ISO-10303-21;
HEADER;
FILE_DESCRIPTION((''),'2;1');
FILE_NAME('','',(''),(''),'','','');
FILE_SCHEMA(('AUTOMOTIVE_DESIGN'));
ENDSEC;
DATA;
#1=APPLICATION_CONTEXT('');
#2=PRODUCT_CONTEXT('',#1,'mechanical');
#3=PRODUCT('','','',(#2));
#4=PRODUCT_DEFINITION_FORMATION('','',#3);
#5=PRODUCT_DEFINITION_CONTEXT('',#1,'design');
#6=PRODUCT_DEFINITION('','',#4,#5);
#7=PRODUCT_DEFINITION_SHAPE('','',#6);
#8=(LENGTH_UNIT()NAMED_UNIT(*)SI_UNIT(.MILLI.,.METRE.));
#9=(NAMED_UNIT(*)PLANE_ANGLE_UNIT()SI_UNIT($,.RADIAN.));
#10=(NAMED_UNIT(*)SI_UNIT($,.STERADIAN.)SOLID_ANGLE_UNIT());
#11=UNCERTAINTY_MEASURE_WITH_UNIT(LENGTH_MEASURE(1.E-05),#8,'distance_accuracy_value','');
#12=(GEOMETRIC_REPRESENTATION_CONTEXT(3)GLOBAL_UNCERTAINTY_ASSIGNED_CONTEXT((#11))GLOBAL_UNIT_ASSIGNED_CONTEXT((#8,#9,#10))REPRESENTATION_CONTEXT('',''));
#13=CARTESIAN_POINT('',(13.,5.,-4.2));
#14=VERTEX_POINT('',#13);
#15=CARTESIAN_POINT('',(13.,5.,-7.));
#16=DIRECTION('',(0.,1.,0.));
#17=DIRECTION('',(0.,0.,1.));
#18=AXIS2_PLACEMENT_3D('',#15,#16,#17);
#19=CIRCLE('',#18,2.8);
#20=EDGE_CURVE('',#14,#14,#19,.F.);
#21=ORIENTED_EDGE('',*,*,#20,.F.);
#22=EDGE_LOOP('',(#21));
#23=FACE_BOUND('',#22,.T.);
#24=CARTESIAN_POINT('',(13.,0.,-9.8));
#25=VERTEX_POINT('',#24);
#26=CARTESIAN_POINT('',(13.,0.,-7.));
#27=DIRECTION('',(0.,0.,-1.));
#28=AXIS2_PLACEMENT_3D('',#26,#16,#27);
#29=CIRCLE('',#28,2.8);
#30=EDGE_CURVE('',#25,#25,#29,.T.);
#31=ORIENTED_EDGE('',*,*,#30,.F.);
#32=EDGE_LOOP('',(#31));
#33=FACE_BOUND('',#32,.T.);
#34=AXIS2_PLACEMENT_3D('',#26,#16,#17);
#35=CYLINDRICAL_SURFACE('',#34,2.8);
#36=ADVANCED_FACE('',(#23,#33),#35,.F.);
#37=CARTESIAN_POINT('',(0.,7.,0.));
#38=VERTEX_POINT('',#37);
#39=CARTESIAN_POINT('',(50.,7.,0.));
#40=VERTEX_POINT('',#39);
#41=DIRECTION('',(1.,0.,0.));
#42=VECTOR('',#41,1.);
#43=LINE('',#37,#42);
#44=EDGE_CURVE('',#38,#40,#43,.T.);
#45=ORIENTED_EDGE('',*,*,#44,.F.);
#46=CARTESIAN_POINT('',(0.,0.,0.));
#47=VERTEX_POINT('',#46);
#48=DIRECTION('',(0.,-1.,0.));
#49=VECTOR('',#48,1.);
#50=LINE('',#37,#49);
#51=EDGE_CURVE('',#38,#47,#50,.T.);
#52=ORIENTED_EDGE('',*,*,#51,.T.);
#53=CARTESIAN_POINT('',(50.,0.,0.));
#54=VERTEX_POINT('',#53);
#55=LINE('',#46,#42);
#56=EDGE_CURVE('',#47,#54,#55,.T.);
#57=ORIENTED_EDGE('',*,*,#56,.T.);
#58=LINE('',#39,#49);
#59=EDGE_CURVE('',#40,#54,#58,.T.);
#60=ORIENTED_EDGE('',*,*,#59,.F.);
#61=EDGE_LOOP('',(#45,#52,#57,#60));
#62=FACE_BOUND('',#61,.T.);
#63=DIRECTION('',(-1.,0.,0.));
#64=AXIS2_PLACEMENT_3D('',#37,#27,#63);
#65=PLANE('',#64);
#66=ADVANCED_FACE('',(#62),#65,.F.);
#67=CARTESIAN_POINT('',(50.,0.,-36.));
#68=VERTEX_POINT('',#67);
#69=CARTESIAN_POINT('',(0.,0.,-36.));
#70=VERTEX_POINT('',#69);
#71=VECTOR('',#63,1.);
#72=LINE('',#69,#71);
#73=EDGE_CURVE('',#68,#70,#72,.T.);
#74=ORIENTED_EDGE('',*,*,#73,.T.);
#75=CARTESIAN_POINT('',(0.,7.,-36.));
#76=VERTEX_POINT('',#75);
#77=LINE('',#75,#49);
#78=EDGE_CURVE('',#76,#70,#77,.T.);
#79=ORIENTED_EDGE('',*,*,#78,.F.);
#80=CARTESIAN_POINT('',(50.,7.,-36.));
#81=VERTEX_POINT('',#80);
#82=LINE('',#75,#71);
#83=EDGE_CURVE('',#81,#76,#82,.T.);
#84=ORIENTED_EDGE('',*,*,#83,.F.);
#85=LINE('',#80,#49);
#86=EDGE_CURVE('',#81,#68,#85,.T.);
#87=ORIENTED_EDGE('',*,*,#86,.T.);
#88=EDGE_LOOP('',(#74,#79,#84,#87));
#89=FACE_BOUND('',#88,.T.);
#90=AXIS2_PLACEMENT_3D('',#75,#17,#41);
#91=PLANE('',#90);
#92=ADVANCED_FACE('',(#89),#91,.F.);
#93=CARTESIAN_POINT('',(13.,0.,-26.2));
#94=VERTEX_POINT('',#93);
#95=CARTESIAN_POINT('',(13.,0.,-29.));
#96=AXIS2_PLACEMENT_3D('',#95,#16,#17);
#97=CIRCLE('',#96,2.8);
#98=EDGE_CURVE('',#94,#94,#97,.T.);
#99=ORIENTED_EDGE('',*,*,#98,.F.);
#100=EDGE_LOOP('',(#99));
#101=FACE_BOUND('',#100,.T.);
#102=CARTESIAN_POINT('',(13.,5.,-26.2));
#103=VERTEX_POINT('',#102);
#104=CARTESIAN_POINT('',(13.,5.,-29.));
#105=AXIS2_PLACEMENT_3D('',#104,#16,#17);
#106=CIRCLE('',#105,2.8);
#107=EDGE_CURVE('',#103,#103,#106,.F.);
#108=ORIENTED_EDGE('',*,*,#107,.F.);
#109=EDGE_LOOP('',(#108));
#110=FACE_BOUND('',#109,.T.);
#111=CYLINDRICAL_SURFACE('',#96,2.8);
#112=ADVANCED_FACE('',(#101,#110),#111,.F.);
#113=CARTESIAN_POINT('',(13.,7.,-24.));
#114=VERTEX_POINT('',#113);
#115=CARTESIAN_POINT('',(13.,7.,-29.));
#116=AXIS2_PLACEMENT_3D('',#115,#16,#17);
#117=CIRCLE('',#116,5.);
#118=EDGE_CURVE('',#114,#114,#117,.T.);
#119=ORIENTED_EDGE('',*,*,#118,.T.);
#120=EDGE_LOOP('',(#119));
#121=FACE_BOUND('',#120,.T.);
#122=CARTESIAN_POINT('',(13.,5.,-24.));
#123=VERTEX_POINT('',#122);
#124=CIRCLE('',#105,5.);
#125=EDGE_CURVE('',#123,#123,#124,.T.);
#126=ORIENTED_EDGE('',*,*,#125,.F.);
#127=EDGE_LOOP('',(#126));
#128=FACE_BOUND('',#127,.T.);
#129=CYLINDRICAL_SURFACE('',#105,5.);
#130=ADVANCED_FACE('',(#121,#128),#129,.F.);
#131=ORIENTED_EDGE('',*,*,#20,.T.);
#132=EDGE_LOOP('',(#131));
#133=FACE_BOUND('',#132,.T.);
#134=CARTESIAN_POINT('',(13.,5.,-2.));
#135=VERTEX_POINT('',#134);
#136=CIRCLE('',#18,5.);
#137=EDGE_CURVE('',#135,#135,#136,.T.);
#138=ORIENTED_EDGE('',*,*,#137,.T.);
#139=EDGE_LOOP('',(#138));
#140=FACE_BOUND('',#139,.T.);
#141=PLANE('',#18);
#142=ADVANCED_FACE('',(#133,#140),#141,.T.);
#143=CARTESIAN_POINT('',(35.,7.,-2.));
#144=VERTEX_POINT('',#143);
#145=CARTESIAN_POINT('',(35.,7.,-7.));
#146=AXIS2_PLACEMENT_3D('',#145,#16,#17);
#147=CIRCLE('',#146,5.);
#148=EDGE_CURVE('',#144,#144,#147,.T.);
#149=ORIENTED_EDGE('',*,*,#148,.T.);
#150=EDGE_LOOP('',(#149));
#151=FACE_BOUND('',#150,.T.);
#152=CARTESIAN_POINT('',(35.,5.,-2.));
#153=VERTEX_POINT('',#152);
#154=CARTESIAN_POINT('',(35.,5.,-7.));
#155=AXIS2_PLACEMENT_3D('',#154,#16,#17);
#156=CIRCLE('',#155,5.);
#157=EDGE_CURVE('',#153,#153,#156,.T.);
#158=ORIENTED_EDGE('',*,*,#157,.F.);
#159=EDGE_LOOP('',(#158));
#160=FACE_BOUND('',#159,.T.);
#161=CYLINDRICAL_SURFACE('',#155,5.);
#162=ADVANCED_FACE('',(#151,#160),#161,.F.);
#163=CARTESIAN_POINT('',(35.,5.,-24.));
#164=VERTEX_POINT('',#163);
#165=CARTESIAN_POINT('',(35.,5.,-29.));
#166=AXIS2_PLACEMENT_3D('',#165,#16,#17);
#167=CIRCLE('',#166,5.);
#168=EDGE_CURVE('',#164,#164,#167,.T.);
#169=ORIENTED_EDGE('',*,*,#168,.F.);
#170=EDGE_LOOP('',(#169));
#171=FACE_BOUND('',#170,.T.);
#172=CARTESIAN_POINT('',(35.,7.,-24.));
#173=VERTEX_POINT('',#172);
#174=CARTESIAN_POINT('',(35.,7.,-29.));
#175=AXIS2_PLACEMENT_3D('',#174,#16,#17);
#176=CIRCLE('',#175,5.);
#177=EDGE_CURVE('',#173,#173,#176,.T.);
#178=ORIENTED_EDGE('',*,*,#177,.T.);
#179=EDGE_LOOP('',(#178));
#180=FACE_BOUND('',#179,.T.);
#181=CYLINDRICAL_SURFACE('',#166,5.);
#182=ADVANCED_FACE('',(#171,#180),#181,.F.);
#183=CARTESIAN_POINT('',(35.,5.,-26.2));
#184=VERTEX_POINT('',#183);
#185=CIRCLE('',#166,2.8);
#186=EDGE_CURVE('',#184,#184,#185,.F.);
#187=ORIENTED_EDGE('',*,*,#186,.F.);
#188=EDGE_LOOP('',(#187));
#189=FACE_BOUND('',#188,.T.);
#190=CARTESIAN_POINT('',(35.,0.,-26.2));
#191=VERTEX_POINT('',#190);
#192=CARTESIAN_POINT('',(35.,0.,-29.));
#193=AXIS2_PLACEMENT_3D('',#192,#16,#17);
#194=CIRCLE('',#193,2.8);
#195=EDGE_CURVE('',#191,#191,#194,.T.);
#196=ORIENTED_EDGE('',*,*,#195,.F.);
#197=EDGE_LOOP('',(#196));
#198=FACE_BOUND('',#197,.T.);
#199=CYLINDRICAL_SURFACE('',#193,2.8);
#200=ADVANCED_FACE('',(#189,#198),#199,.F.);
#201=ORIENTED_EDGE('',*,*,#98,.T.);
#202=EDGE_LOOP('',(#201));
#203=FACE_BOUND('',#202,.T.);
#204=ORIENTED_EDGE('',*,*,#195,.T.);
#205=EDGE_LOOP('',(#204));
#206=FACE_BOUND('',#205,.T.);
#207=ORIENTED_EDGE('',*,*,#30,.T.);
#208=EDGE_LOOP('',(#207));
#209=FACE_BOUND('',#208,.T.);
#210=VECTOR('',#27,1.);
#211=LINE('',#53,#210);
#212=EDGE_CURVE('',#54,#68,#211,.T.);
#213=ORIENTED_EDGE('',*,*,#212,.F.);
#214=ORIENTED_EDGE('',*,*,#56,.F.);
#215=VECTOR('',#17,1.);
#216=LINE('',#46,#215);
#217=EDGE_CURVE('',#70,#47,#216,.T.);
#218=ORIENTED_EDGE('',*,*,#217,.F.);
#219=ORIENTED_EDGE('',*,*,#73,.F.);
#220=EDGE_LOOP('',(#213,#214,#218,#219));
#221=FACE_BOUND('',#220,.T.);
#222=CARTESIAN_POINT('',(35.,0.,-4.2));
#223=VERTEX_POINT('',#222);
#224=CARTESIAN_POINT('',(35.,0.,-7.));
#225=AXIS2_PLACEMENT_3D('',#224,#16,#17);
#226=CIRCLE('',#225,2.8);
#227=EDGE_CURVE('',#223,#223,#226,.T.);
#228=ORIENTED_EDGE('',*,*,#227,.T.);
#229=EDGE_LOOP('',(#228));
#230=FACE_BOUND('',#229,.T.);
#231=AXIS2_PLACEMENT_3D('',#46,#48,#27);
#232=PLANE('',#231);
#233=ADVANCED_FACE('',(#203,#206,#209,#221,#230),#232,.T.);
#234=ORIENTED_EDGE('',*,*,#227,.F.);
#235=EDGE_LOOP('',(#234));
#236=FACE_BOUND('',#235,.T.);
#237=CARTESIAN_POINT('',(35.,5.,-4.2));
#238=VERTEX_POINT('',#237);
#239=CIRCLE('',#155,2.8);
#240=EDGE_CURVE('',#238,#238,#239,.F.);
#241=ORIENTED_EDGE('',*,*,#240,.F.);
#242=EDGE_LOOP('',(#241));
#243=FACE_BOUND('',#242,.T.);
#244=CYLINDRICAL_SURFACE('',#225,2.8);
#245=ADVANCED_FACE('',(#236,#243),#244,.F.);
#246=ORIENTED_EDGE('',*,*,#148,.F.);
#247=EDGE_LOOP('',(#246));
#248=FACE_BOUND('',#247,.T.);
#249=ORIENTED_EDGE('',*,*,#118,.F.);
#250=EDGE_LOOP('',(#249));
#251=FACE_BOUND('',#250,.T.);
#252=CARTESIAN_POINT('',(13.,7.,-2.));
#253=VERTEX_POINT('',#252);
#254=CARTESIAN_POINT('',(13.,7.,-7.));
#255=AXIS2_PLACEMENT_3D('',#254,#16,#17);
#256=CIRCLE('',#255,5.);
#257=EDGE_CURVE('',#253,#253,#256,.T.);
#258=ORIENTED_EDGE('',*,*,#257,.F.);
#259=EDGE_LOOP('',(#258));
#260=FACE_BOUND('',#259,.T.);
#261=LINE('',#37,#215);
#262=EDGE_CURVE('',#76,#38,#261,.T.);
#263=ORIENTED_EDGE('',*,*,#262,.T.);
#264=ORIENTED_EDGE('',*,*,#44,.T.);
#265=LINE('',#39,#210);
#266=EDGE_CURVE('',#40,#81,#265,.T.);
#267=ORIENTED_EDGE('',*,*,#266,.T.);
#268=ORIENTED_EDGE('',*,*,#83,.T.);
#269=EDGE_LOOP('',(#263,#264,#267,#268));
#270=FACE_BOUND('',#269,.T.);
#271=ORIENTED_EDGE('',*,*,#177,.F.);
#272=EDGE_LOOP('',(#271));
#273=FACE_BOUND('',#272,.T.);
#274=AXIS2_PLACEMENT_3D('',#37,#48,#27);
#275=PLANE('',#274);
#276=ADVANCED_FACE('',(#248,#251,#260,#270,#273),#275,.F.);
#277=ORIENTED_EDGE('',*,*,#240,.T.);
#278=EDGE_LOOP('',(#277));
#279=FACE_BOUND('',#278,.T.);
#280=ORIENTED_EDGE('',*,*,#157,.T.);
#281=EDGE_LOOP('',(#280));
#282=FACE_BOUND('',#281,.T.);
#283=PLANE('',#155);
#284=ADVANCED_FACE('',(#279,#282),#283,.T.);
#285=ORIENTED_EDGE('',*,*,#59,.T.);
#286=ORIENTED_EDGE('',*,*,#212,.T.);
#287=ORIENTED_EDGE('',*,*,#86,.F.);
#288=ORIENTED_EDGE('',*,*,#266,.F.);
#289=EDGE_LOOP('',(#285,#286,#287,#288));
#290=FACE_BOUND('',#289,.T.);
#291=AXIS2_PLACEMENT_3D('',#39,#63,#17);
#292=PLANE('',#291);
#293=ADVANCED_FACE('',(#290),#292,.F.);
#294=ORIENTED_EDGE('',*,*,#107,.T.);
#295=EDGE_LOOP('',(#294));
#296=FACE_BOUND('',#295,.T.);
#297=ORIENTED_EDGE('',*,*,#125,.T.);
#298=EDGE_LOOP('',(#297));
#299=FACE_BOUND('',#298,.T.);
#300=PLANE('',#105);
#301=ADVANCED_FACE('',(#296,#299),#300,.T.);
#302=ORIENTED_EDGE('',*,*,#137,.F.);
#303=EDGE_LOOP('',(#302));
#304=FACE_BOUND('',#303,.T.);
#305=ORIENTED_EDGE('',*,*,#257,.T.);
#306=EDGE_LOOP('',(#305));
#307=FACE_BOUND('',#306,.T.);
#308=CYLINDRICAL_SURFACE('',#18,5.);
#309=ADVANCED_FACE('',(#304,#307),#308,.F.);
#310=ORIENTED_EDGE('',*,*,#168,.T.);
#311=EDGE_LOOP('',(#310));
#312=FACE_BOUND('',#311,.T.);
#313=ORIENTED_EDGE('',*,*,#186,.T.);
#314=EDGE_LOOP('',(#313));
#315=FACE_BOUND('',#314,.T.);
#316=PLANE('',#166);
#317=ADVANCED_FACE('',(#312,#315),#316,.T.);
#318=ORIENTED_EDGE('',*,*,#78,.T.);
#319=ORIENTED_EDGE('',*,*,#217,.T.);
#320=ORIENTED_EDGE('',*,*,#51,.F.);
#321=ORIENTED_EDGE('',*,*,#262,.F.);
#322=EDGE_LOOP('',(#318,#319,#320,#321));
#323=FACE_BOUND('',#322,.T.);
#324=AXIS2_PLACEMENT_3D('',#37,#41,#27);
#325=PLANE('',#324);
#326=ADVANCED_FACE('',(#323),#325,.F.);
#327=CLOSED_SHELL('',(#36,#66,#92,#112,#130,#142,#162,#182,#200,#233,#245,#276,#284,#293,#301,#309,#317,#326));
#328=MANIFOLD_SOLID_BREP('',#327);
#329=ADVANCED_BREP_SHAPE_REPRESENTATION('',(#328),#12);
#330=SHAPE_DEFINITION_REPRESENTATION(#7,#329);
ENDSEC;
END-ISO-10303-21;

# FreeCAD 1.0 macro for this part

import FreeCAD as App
import Part
import Sketcher

V = App.Vector


def add_polygon(sketch, points):
    """Adds a closed chain of lines whose ends are joined by coincident constraints."""
    first, n = sketch.GeometryCount, len(points)
    for a, b in zip(points, points[1:] + points[:1]):
        sketch.addGeometry(Part.LineSegment(App.Vector(*a, 0), App.Vector(*b, 0)), False)
    for i in range(n):
        sketch.addConstraint(Sketcher.Constraint("Coincident", first + i, 2, first + (i + 1) % n, 1))

doc = App.newDocument("Part")
body = doc.addObject("PartDesign::Body", "Body")

sketch1 = doc.addObject("Sketcher::SketchObject", "Sketch")
body.addObject(sketch1)
sketch1.AttachmentSupport = (doc.XZ_Plane, [""])
sketch1.MapMode = "FlatFace"
add_polygon(sketch1, [(0, -36), (0, 0), (50, 0), (50, -36)])
sketch1.addConstraint([
    Sketcher.Constraint("Vertical", 0),
    Sketcher.Constraint("Horizontal", 1),
    Sketcher.Constraint("Vertical", 2),
    Sketcher.Constraint("Horizontal", 3),
    Sketcher.Constraint("Coincident", 0, 2, -1, 1),
    Sketcher.Constraint("DistanceX", 1, 1, 1, 2, 50.0),
    Sketcher.Constraint("DistanceY", 0, 1, 0, 2, 36.0),
])
pad1 = doc.addObject("PartDesign::Pad", "Pad")
body.addObject(pad1)
pad1.Profile = sketch1
pad1.Length = 7
pad1.Reversed = True

sketch2 = doc.addObject("Sketcher::SketchObject", "Sketch001")
body.addObject(sketch2)
sketch2.AttachmentSupport = (doc.XZ_Plane, [""])
sketch2.MapMode = "FlatFace"
sketch2.AttachmentOffset = App.Placement(V(0, 0, -7), App.Rotation())
sketch2.addGeometry([
    Part.Circle(V(13, -29, 0), V(0, 0, 1), 2.8),
    Part.Circle(V(13, -7, 0), V(0, 0, 1), 2.8),
    Part.Circle(V(35, -29, 0), V(0, 0, 1), 2.8),
    Part.Circle(V(35, -7, 0), V(0, 0, 1), 2.8),
], False)
sketch2.addConstraint([
    Sketcher.Constraint("Equal", 0, 1),
    Sketcher.Constraint("Equal", 1, 2),
    Sketcher.Constraint("Equal", 2, 3),
    Sketcher.Constraint("Horizontal", 0, 3, 2, 3),
    Sketcher.Constraint("Horizontal", 1, 3, 3, 3),
    Sketcher.Constraint("Vertical", 0, 3, 1, 3),
    Sketcher.Constraint("Vertical", 2, 3, 3, 3),
    Sketcher.Constraint("Diameter", 0, 5.6),
    Sketcher.Constraint("DistanceX", -1, 1, 0, 3, 13.0),
    Sketcher.Constraint("DistanceY", 0, 3, -1, 1, 29.0),
    Sketcher.Constraint("DistanceY", 1, 3, -1, 1, 7.0),
    Sketcher.Constraint("DistanceX", -1, 1, 2, 3, 35.0),
])
pocket1 = doc.addObject("PartDesign::Pocket", "Pocket")
body.addObject(pocket1)
pocket1.Profile = sketch2
pocket1.Type = "ThroughAll"
pocket1.Reversed = True

sketch3 = doc.addObject("Sketcher::SketchObject", "Sketch002")
body.addObject(sketch3)
sketch3.AttachmentSupport = (doc.XZ_Plane, [""])
sketch3.MapMode = "FlatFace"
sketch3.AttachmentOffset = App.Placement(V(0, 0, -7), App.Rotation())
sketch3.addGeometry([
    Part.Circle(V(13, -29, 0), V(0, 0, 1), 5),
    Part.Circle(V(13, -7, 0), V(0, 0, 1), 5),
    Part.Circle(V(35, -29, 0), V(0, 0, 1), 5),
    Part.Circle(V(35, -7, 0), V(0, 0, 1), 5),
], False)
sketch3.addConstraint([
    Sketcher.Constraint("Equal", 0, 1),
    Sketcher.Constraint("Equal", 1, 2),
    Sketcher.Constraint("Equal", 2, 3),
    Sketcher.Constraint("Horizontal", 0, 3, 2, 3),
    Sketcher.Constraint("Horizontal", 1, 3, 3, 3),
    Sketcher.Constraint("Vertical", 0, 3, 1, 3),
    Sketcher.Constraint("Vertical", 2, 3, 3, 3),
    Sketcher.Constraint("Diameter", 0, 10.0),
    Sketcher.Constraint("DistanceX", -1, 1, 0, 3, 13.0),
    Sketcher.Constraint("DistanceY", 0, 3, -1, 1, 29.0),
    Sketcher.Constraint("DistanceY", 1, 3, -1, 1, 7.0),
    Sketcher.Constraint("DistanceX", -1, 1, 2, 3, 35.0),
])
pocket2 = doc.addObject("PartDesign::Pocket", "Pocket001")
body.addObject(pocket2)
pocket2.Profile = sketch3
pocket2.Length = 2
pocket2.Reversed = True

doc.recompute()
